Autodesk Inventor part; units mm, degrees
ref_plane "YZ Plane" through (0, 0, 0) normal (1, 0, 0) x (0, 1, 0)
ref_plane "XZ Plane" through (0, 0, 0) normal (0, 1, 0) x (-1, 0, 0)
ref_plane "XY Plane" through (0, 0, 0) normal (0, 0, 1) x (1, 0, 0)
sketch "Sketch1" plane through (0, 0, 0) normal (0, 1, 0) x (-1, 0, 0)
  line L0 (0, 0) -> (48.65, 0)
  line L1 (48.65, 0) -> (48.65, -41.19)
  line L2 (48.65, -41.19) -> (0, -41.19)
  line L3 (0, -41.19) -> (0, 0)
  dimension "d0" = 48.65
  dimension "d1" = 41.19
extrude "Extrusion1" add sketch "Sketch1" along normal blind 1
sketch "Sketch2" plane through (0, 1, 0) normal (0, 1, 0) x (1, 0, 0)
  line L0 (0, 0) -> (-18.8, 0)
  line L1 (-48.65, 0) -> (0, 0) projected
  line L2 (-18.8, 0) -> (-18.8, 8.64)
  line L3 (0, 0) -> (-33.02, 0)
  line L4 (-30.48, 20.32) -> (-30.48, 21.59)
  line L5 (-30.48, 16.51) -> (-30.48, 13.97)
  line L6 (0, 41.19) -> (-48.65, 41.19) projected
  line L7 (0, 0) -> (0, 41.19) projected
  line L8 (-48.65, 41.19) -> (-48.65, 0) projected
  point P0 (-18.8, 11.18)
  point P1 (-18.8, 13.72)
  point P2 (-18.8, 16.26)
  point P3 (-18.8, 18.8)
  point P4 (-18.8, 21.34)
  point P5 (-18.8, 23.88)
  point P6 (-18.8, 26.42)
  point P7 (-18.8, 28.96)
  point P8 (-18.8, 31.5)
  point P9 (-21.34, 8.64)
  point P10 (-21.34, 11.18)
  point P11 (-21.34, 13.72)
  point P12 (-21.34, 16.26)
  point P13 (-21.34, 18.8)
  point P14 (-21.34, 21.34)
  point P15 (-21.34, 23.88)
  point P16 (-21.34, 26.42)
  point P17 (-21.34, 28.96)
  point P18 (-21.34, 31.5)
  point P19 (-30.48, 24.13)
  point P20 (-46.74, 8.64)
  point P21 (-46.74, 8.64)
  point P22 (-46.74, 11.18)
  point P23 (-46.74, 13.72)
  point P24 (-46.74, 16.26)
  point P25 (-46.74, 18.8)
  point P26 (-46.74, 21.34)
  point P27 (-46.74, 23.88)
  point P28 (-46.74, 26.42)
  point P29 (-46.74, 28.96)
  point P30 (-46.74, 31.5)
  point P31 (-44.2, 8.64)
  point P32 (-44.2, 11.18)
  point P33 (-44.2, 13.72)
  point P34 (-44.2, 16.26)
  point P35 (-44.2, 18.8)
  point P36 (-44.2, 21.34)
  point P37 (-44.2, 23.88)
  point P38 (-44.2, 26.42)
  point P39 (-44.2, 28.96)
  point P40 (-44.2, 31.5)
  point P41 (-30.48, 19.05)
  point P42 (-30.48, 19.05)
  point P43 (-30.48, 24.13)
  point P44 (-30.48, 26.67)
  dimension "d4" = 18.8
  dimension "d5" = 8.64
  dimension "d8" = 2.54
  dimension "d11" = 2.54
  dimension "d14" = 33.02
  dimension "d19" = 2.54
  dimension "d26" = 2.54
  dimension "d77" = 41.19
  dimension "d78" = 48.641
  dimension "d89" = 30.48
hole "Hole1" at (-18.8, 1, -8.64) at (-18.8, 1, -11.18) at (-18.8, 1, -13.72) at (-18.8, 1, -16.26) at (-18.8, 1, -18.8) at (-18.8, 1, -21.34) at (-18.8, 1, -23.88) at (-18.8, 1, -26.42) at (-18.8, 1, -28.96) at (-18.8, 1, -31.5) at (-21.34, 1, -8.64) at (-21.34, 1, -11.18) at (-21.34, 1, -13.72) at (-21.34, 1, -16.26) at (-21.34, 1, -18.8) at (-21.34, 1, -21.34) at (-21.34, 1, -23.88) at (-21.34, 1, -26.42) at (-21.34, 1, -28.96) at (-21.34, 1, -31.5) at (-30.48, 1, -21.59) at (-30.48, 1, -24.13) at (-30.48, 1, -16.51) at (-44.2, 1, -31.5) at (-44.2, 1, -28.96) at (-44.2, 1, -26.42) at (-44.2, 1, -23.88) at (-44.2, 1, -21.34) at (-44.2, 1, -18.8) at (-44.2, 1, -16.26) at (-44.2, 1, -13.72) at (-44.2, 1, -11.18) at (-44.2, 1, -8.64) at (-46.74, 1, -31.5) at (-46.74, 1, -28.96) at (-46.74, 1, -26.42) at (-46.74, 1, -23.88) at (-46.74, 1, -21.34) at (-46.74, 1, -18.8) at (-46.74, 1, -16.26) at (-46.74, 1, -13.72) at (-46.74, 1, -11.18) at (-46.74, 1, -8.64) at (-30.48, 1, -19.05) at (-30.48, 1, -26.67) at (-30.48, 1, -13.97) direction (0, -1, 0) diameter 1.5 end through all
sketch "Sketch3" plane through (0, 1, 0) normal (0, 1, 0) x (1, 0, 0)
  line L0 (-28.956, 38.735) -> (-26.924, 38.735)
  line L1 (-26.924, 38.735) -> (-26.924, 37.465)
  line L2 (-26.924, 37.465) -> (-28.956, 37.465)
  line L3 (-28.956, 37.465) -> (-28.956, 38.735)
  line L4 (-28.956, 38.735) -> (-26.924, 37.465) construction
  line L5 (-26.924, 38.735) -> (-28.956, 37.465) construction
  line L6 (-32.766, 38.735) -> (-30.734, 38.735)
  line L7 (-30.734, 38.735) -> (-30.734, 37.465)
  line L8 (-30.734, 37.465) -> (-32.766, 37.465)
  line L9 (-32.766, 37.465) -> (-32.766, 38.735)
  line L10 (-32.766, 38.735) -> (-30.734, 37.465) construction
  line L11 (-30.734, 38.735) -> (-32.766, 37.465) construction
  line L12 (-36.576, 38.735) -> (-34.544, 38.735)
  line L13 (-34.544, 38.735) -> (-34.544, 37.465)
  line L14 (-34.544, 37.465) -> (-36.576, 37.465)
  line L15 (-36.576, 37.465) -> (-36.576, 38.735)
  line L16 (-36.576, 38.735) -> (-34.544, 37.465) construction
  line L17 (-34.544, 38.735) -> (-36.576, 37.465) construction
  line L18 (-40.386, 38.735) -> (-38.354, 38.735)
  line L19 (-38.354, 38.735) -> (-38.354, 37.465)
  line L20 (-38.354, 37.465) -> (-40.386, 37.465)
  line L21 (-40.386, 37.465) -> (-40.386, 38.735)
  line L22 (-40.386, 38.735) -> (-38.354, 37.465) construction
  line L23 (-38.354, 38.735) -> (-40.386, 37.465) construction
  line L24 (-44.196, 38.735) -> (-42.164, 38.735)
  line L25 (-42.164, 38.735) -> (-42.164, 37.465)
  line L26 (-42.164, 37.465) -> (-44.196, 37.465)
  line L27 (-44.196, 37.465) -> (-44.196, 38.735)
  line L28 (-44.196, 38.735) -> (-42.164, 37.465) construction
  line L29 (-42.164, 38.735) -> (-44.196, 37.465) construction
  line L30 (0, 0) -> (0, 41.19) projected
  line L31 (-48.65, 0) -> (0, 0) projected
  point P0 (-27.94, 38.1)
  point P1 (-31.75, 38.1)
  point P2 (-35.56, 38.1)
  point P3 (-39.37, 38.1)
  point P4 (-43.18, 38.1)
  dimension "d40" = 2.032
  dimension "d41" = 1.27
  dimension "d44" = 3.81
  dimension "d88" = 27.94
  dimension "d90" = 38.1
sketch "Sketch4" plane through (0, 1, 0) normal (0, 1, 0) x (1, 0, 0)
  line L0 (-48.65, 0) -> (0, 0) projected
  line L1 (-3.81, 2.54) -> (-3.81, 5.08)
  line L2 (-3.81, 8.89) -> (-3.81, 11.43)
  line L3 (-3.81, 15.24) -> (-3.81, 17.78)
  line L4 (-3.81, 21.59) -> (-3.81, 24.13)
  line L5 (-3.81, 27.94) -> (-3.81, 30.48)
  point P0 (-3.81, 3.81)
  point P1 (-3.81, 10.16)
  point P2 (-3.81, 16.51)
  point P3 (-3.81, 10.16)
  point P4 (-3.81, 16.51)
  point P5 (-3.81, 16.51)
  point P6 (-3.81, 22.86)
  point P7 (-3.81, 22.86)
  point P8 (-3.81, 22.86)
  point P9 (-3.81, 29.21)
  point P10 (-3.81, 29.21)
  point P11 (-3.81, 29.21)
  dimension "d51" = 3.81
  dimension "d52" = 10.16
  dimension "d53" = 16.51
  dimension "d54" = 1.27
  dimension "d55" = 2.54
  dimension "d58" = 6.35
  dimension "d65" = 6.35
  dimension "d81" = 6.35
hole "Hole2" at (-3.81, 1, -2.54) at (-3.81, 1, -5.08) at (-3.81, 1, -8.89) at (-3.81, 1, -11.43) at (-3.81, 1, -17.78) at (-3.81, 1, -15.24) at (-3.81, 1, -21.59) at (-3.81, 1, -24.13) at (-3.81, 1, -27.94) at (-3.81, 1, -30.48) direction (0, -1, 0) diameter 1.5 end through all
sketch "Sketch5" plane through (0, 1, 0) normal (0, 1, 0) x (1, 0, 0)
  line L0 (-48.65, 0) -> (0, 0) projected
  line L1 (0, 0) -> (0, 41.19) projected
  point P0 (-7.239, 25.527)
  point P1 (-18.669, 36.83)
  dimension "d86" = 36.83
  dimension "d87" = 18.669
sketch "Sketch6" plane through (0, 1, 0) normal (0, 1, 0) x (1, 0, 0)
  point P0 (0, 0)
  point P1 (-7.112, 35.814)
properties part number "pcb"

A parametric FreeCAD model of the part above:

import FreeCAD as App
import Part
import Sketcher

doc = App.newDocument("Part")
params = doc.addObject("Spreadsheet::Sheet", "Params")
for row, (alias, value) in enumerate([
    ("sketch1_width", "48.65 mm"),
    ("sketch1_height", "41.19 mm"),
    ("pad1_length", "1 mm"),
    ("sketch2_diameter", "1.5 mm"),
    ("hole_diameter", "1.5 mm"),
    ("sketch3_diameter", "1.5 mm"),
    ("hole2_diameter", "1.5 mm"),
], start=1):
    params.set(f"A{row}", alias)
    params.set(f"B{row}", "=" + value)
    params.setAlias(f"B{row}", alias)

body = doc.addObject("PartDesign::Body", "Body")

# Sketch on XZ plane
sketch1 = body.newObject("Sketcher::SketchObject", "Sketch")
sketch1.AttachmentSupport = (doc.getObject("XZ_Plane"), [""])
sketch1.MapMode = "FlatFace"
sketch1.addGeometry([
    Part.LineSegment(App.Vector(-49, 0, 0), App.Vector(0, 0, 0)),
    Part.LineSegment(App.Vector(0, 0, 0), App.Vector(0, -41, 0)),
    Part.LineSegment(App.Vector(0, -41, 0), App.Vector(-49, -41, 0)),
    Part.LineSegment(App.Vector(-49, -41, 0), App.Vector(-49, 0, 0)),
], False)
sketch1.addConstraint([
    Sketcher.Constraint("Coincident", 0, 2, 1, 1),
    Sketcher.Constraint("Coincident", 1, 2, 2, 1),
    Sketcher.Constraint("Coincident", 2, 2, 3, 1),
    Sketcher.Constraint("Coincident", 3, 2, 0, 1),
    Sketcher.Constraint("Horizontal", 0),
    Sketcher.Constraint("Vertical", 1),
    Sketcher.Constraint("Horizontal", 2),
    Sketcher.Constraint("Vertical", 3),
    Sketcher.Constraint("Coincident", 0, 2, -1, 1),
    Sketcher.Constraint("DistanceX", 0, 1, 0, 2, 48.65),
    Sketcher.Constraint("DistanceY", 1, 2, 1, 1, 41.19),
])
sketch1.setExpression("Constraints[9]", "Params.sketch1_width")
sketch1.setExpression("Constraints[10]", "Params.sketch1_height")
pad1 = body.newObject("PartDesign::Pad", "Pad")
pad1.Profile = sketch1
pad1.setExpression("Length", "Params.pad1_length")
pad1.Reversed = True

# Sketch on XZ plane
sketch2 = body.newObject("Sketcher::SketchObject", "Sketch001")
sketch2.AttachmentSupport = (doc.getObject("XZ_Plane"), [""])
sketch2.MapMode = "FlatFace"
sketch2.AttachmentOffset = App.Placement(App.Vector(0, 0, -1), App.Rotation())
sketch2.addGeometry([
    Part.Circle(App.Vector(-18.8, -8.6, 0), App.Vector(0, 0, 1), 0.8),  # 0
    Part.Circle(App.Vector(-18.8, -11.2, 0), App.Vector(0, 0, 1), 0.8),  # 1
    Part.Circle(App.Vector(-18.8, -13.7, 0), App.Vector(0, 0, 1), 0.8),  # 2
    Part.Circle(App.Vector(-18.8, -16.3, 0), App.Vector(0, 0, 1), 0.8),  # 3
    Part.Circle(App.Vector(-18.8, -18.8, 0), App.Vector(0, 0, 1), 0.8),  # 4
    Part.Circle(App.Vector(-18.8, -21.3, 0), App.Vector(0, 0, 1), 0.8),  # 5
    Part.Circle(App.Vector(-18.8, -23.9, 0), App.Vector(0, 0, 1), 0.8),  # 6
    Part.Circle(App.Vector(-18.8, -26.4, 0), App.Vector(0, 0, 1), 0.8),  # 7
    Part.Circle(App.Vector(-18.8, -29, 0), App.Vector(0, 0, 1), 0.8),  # 8
    Part.Circle(App.Vector(-18.8, -31.5, 0), App.Vector(0, 0, 1), 0.8),  # 9
    Part.Circle(App.Vector(-21.3, -8.6, 0), App.Vector(0, 0, 1), 0.8),  # 10
    Part.Circle(App.Vector(-21.3, -11.2, 0), App.Vector(0, 0, 1), 0.8),  # 11
    Part.Circle(App.Vector(-21.3, -13.7, 0), App.Vector(0, 0, 1), 0.8),  # 12
    Part.Circle(App.Vector(-21.3, -16.3, 0), App.Vector(0, 0, 1), 0.8),  # 13
    Part.Circle(App.Vector(-21.3, -18.8, 0), App.Vector(0, 0, 1), 0.8),  # 14
    Part.Circle(App.Vector(-21.3, -21.3, 0), App.Vector(0, 0, 1), 0.8),  # 15
    Part.Circle(App.Vector(-21.3, -23.9, 0), App.Vector(0, 0, 1), 0.8),  # 16
    Part.Circle(App.Vector(-21.3, -26.4, 0), App.Vector(0, 0, 1), 0.8),  # 17
    Part.Circle(App.Vector(-21.3, -29, 0), App.Vector(0, 0, 1), 0.8),  # 18
    Part.Circle(App.Vector(-21.3, -31.5, 0), App.Vector(0, 0, 1), 0.8),  # 19
    Part.Circle(App.Vector(-30.5, -21.6, 0), App.Vector(0, 0, 1), 0.8),  # 20
    Part.Circle(App.Vector(-30.5, -24.1, 0), App.Vector(0, 0, 1), 0.8),  # 21
    Part.Circle(App.Vector(-30.5, -16.5, 0), App.Vector(0, 0, 1), 0.8),  # 22
    Part.Circle(App.Vector(-44.2, -31.5, 0), App.Vector(0, 0, 1), 0.8),  # 23
    Part.Circle(App.Vector(-44.2, -29, 0), App.Vector(0, 0, 1), 0.8),  # 24
    Part.Circle(App.Vector(-44.2, -26.4, 0), App.Vector(0, 0, 1), 0.8),  # 25
    Part.Circle(App.Vector(-44.2, -23.9, 0), App.Vector(0, 0, 1), 0.8),  # 26
    Part.Circle(App.Vector(-44.2, -21.3, 0), App.Vector(0, 0, 1), 0.8),  # 27
    Part.Circle(App.Vector(-44.2, -18.8, 0), App.Vector(0, 0, 1), 0.8),  # 28
    Part.Circle(App.Vector(-44.2, -16.3, 0), App.Vector(0, 0, 1), 0.8),  # 29
    Part.Circle(App.Vector(-44.2, -13.7, 0), App.Vector(0, 0, 1), 0.8),  # 30
    Part.Circle(App.Vector(-44.2, -11.2, 0), App.Vector(0, 0, 1), 0.8),  # 31
    Part.Circle(App.Vector(-44.2, -8.6, 0), App.Vector(0, 0, 1), 0.8),  # 32
    Part.Circle(App.Vector(-46.7, -31.5, 0), App.Vector(0, 0, 1), 0.8),  # 33
    Part.Circle(App.Vector(-46.7, -29, 0), App.Vector(0, 0, 1), 0.8),  # 34
    Part.Circle(App.Vector(-46.7, -26.4, 0), App.Vector(0, 0, 1), 0.8),  # 35
    Part.Circle(App.Vector(-46.7, -23.9, 0), App.Vector(0, 0, 1), 0.8),  # 36
    Part.Circle(App.Vector(-46.7, -21.3, 0), App.Vector(0, 0, 1), 0.8),  # 37
    Part.Circle(App.Vector(-46.7, -18.8, 0), App.Vector(0, 0, 1), 0.8),  # 38
    Part.Circle(App.Vector(-46.7, -16.3, 0), App.Vector(0, 0, 1), 0.8),  # 39
    Part.Circle(App.Vector(-46.7, -13.7, 0), App.Vector(0, 0, 1), 0.8),  # 40
    Part.Circle(App.Vector(-46.7, -11.2, 0), App.Vector(0, 0, 1), 0.8),  # 41
    Part.Circle(App.Vector(-46.7, -8.6, 0), App.Vector(0, 0, 1), 0.8),  # 42
    Part.Circle(App.Vector(-30.5, -19.1, 0), App.Vector(0, 0, 1), 0.8),  # 43
    Part.Circle(App.Vector(-30.5, -26.7, 0), App.Vector(0, 0, 1), 0.8),  # 44
    Part.Circle(App.Vector(-30.5, -14, 0), App.Vector(0, 0, 1), 0.8),  # 45
], False)
sketch2.addConstraint([
    Sketcher.Constraint("Equal", 0, 1),
    Sketcher.Constraint("Equal", 1, 2),
    Sketcher.Constraint("Equal", 2, 3),
    Sketcher.Constraint("Equal", 3, 4),
    Sketcher.Constraint("Equal", 4, 5),
    Sketcher.Constraint("Equal", 5, 6),
    Sketcher.Constraint("Equal", 6, 7),
    Sketcher.Constraint("Equal", 7, 8),
    Sketcher.Constraint("Equal", 8, 9),
    Sketcher.Constraint("Equal", 9, 10),
    Sketcher.Constraint("Equal", 10, 11),
    Sketcher.Constraint("Equal", 11, 12),
    Sketcher.Constraint("Equal", 12, 13),
    Sketcher.Constraint("Equal", 13, 14),
    Sketcher.Constraint("Equal", 14, 15),
    Sketcher.Constraint("Equal", 15, 16),
    Sketcher.Constraint("Equal", 16, 17),
    Sketcher.Constraint("Equal", 17, 18),
    Sketcher.Constraint("Equal", 18, 19),
    Sketcher.Constraint("Equal", 19, 20),
    Sketcher.Constraint("Equal", 20, 21),
    Sketcher.Constraint("Equal", 21, 22),
    Sketcher.Constraint("Equal", 22, 23),
    Sketcher.Constraint("Equal", 23, 24),
    Sketcher.Constraint("Equal", 24, 25),
    Sketcher.Constraint("Equal", 25, 26),
    Sketcher.Constraint("Equal", 26, 27),
    Sketcher.Constraint("Equal", 27, 28),
    Sketcher.Constraint("Equal", 28, 29),
    Sketcher.Constraint("Equal", 29, 30),
    Sketcher.Constraint("Equal", 30, 31),
    Sketcher.Constraint("Equal", 31, 32),
    Sketcher.Constraint("Equal", 32, 33),
    Sketcher.Constraint("Equal", 33, 34),
    Sketcher.Constraint("Equal", 34, 35),
    Sketcher.Constraint("Equal", 35, 36),
    Sketcher.Constraint("Equal", 36, 37),
    Sketcher.Constraint("Equal", 37, 38),
    Sketcher.Constraint("Equal", 38, 39),
    Sketcher.Constraint("Equal", 39, 40),
    Sketcher.Constraint("Equal", 40, 41),
    Sketcher.Constraint("Equal", 41, 42),
    Sketcher.Constraint("Equal", 42, 43),
    Sketcher.Constraint("Equal", 43, 44),
    Sketcher.Constraint("Equal", 44, 45),
    Sketcher.Constraint("Horizontal", 0, 3, 10, 3),
    Sketcher.Constraint("Horizontal", 1, 3, 11, 3),
    Sketcher.Constraint("Horizontal", 2, 3, 12, 3),
    Sketcher.Constraint("Horizontal", 3, 3, 13, 3),
    Sketcher.Constraint("Horizontal", 4, 3, 14, 3),
    Sketcher.Constraint("Horizontal", 5, 3, 15, 3),
    Sketcher.Constraint("Horizontal", 6, 3, 16, 3),
    Sketcher.Constraint("Horizontal", 7, 3, 17, 3),
    Sketcher.Constraint("Horizontal", 8, 3, 18, 3),
    Sketcher.Constraint("Horizontal", 9, 3, 19, 3),
    Sketcher.Constraint("Horizontal", 19, 3, 23, 3),
    Sketcher.Constraint("Horizontal", 18, 3, 24, 3),
    Sketcher.Constraint("Horizontal", 17, 3, 25, 3),
    Sketcher.Constraint("Horizontal", 16, 3, 26, 3),
    Sketcher.Constraint("Horizontal", 15, 3, 27, 3),
    Sketcher.Constraint("Horizontal", 14, 3, 28, 3),
    Sketcher.Constraint("Horizontal", 13, 3, 29, 3),
    Sketcher.Constraint("Horizontal", 12, 3, 30, 3),
    Sketcher.Constraint("Horizontal", 11, 3, 31, 3),
    Sketcher.Constraint("Horizontal", 10, 3, 32, 3),
    Sketcher.Constraint("Horizontal", 23, 3, 33, 3),
    Sketcher.Constraint("Horizontal", 24, 3, 34, 3),
    Sketcher.Constraint("Horizontal", 25, 3, 35, 3),
    Sketcher.Constraint("Horizontal", 26, 3, 36, 3),
    Sketcher.Constraint("Horizontal", 27, 3, 37, 3),
    Sketcher.Constraint("Horizontal", 28, 3, 38, 3),
    Sketcher.Constraint("Horizontal", 29, 3, 39, 3),
    Sketcher.Constraint("Horizontal", 30, 3, 40, 3),
    Sketcher.Constraint("Horizontal", 31, 3, 41, 3),
    Sketcher.Constraint("Horizontal", 32, 3, 42, 3),
    Sketcher.Constraint("Vertical", 0, 3, 1, 3),
    Sketcher.Constraint("Vertical", 1, 3, 2, 3),
    Sketcher.Constraint("Vertical", 2, 3, 3, 3),
    Sketcher.Constraint("Vertical", 3, 3, 4, 3),
    Sketcher.Constraint("Vertical", 4, 3, 5, 3),
    Sketcher.Constraint("Vertical", 5, 3, 6, 3),
    Sketcher.Constraint("Vertical", 6, 3, 7, 3),
    Sketcher.Constraint("Vertical", 7, 3, 8, 3),
    Sketcher.Constraint("Vertical", 8, 3, 9, 3),
    Sketcher.Constraint("Vertical", 10, 3, 11, 3),
    Sketcher.Constraint("Vertical", 11, 3, 12, 3),
    Sketcher.Constraint("Vertical", 12, 3, 13, 3),
    Sketcher.Constraint("Vertical", 13, 3, 14, 3),
    Sketcher.Constraint("Vertical", 14, 3, 15, 3),
    Sketcher.Constraint("Vertical", 15, 3, 16, 3),
    Sketcher.Constraint("Vertical", 16, 3, 17, 3),
    Sketcher.Constraint("Vertical", 17, 3, 18, 3),
    Sketcher.Constraint("Vertical", 18, 3, 19, 3),
    Sketcher.Constraint("Vertical", 20, 3, 21, 3),
    Sketcher.Constraint("Vertical", 21, 3, 22, 3),
    Sketcher.Constraint("Vertical", 23, 3, 24, 3),
    Sketcher.Constraint("Vertical", 24, 3, 25, 3),
    Sketcher.Constraint("Vertical", 25, 3, 26, 3),
    Sketcher.Constraint("Vertical", 26, 3, 27, 3),
    Sketcher.Constraint("Vertical", 27, 3, 28, 3),
    Sketcher.Constraint("Vertical", 28, 3, 29, 3),
    Sketcher.Constraint("Vertical", 29, 3, 30, 3),
    Sketcher.Constraint("Vertical", 30, 3, 31, 3),
    Sketcher.Constraint("Vertical", 31, 3, 32, 3),
    Sketcher.Constraint("Vertical", 33, 3, 34, 3),
    Sketcher.Constraint("Vertical", 34, 3, 35, 3),
    Sketcher.Constraint("Vertical", 35, 3, 36, 3),
    Sketcher.Constraint("Vertical", 36, 3, 37, 3),
    Sketcher.Constraint("Vertical", 37, 3, 38, 3),
    Sketcher.Constraint("Vertical", 38, 3, 39, 3),
    Sketcher.Constraint("Vertical", 39, 3, 40, 3),
    Sketcher.Constraint("Vertical", 40, 3, 41, 3),
    Sketcher.Constraint("Vertical", 41, 3, 42, 3),
    Sketcher.Constraint("Vertical", 22, 3, 43, 3),
    Sketcher.Constraint("Vertical", 43, 3, 44, 3),
    Sketcher.Constraint("Vertical", 44, 3, 45, 3),
    Sketcher.Constraint("Diameter", 0, 1.5),
    Sketcher.Constraint("DistanceX", 0, 3, -1, 1, 18.8),
    Sketcher.Constraint("DistanceY", 4, 3, -1, 1, 18.8),
    Sketcher.Constraint("DistanceY", 9, 3, -1, 1, 31.5),
    Sketcher.Constraint("DistanceX", 23, 3, -1, 1, 44.2),
    Sketcher.Constraint("DistanceY", 5, 3, 0, 3, 12.7),
    Sketcher.Constraint("DistanceY", 6, 3, 1, 3, 12.7),
    Sketcher.Constraint("DistanceY", 7, 3, 2, 3, 12.7),
    Sketcher.Constraint("DistanceY", 8, 3, 3, 3, 12.7),
    Sketcher.Constraint("DistanceY", 0, 3, -1, 1, 8.64),
    Sketcher.Constraint("DistanceY", 1, 3, -1, 1, 11.18),
    Sketcher.Constraint("DistanceY", 2, 3, -1, 1, 13.72),
    Sketcher.Constraint("DistanceY", 3, 3, -1, 1, 16.26),
    Sketcher.Constraint("DistanceX", 10, 3, -1, 1, 21.34),
    Sketcher.Constraint("DistanceX", 20, 3, -1, 1, 30.48),
    Sketcher.Constraint("DistanceY", 20, 3, -1, 1, 21.59),
    Sketcher.Constraint("DistanceY", 21, 3, -1, 1, 24.13),
    Sketcher.Constraint("DistanceY", 22, 3, -1, 1, 16.51),
    Sketcher.Constraint("DistanceX", 33, 3, -1, 1, 46.74),
    Sketcher.Constraint("DistanceY", 43, 3, -1, 1, 19.05),
    Sketcher.Constraint("DistanceY", 44, 3, -1, 1, 26.67),
    Sketcher.Constraint("DistanceY", 45, 3, -1, 1, 13.97),
])
sketch2.setExpression("Constraints[116]", "Params.sketch2_diameter")
doc.recompute()
hole = body.newObject("PartDesign::Hole", "Hole")
hole.Profile = sketch2
hole.ThreadType = "None"
hole.setExpression("Diameter", "Params.hole_diameter")
hole.DepthType = "ThroughAll"
hole.Reversed = True

# Sketch on XZ plane
sketch3 = body.newObject("Sketcher::SketchObject", "Sketch002")
sketch3.AttachmentSupport = (doc.getObject("XZ_Plane"), [""])
sketch3.MapMode = "FlatFace"
sketch3.AttachmentOffset = App.Placement(App.Vector(0, 0, -1), App.Rotation())
sketch3.addGeometry([
    Part.Circle(App.Vector(-3.8, -2.5, 0), App.Vector(0, 0, 1), 0.8),  # 0
    Part.Circle(App.Vector(-3.8, -5.1, 0), App.Vector(0, 0, 1), 0.8),  # 1
    Part.Circle(App.Vector(-3.8, -8.9, 0), App.Vector(0, 0, 1), 0.8),  # 2
    Part.Circle(App.Vector(-3.8, -11.4, 0), App.Vector(0, 0, 1), 0.8),  # 3
    Part.Circle(App.Vector(-3.8, -17.8, 0), App.Vector(0, 0, 1), 0.8),  # 4
    Part.Circle(App.Vector(-3.8, -15.2, 0), App.Vector(0, 0, 1), 0.8),  # 5
    Part.Circle(App.Vector(-3.8, -21.6, 0), App.Vector(0, 0, 1), 0.8),  # 6
    Part.Circle(App.Vector(-3.8, -24.1, 0), App.Vector(0, 0, 1), 0.8),  # 7
    Part.Circle(App.Vector(-3.8, -27.9, 0), App.Vector(0, 0, 1), 0.8),  # 8
    Part.Circle(App.Vector(-3.8, -30.5, 0), App.Vector(0, 0, 1), 0.8),  # 9
], False)
sketch3.addConstraint([
    Sketcher.Constraint("Equal", 0, 1),
    Sketcher.Constraint("Equal", 1, 2),
    Sketcher.Constraint("Equal", 2, 3),
    Sketcher.Constraint("Equal", 3, 4),
    Sketcher.Constraint("Equal", 4, 5),
    Sketcher.Constraint("Equal", 5, 6),
    Sketcher.Constraint("Equal", 6, 7),
    Sketcher.Constraint("Equal", 7, 8),
    Sketcher.Constraint("Equal", 8, 9),
    Sketcher.Constraint("Vertical", 0, 3, 1, 3),
    Sketcher.Constraint("Vertical", 1, 3, 2, 3),
    Sketcher.Constraint("Vertical", 2, 3, 3, 3),
    Sketcher.Constraint("Vertical", 3, 3, 4, 3),
    Sketcher.Constraint("Vertical", 4, 3, 5, 3),
    Sketcher.Constraint("Vertical", 5, 3, 6, 3),
    Sketcher.Constraint("Vertical", 6, 3, 7, 3),
    Sketcher.Constraint("Vertical", 7, 3, 8, 3),
    Sketcher.Constraint("Vertical", 8, 3, 9, 3),
    Sketcher.Constraint("Diameter", 0, 1.5),
    Sketcher.Constraint("DistanceY", 4, 3, 1, 3, 12.7),
    Sketcher.Constraint("DistanceY", 5, 3, 0, 3, 12.7),
    Sketcher.Constraint("DistanceY", 6, 3, 2, 3, 12.7),
    Sketcher.Constraint("DistanceY", 7, 3, 3, 3, 12.7),
    Sketcher.Constraint("DistanceY", 8, 3, 5, 3, 12.7),
    Sketcher.Constraint("DistanceY", 9, 3, 4, 3, 12.7),
    Sketcher.Constraint("DistanceX", 0, 3, -1, 1, 3.81),
    Sketcher.Constraint("DistanceY", 0, 3, -1, 1, 2.54),
    Sketcher.Constraint("DistanceY", 1, 3, -1, 1, 5.08),
    Sketcher.Constraint("DistanceY", 2, 3, -1, 1, 8.89),
    Sketcher.Constraint("DistanceY", 3, 3, -1, 1, 11.43),
])
sketch3.setExpression("Constraints[18]", "Params.sketch3_diameter")
doc.recompute()
hole2 = body.newObject("PartDesign::Hole", "Hole001")
hole2.Profile = sketch3
hole2.ThreadType = "None"
hole2.setExpression("Diameter", "Params.hole2_diameter")
hole2.DepthType = "ThroughAll"
hole2.Reversed = True

doc.recompute()
